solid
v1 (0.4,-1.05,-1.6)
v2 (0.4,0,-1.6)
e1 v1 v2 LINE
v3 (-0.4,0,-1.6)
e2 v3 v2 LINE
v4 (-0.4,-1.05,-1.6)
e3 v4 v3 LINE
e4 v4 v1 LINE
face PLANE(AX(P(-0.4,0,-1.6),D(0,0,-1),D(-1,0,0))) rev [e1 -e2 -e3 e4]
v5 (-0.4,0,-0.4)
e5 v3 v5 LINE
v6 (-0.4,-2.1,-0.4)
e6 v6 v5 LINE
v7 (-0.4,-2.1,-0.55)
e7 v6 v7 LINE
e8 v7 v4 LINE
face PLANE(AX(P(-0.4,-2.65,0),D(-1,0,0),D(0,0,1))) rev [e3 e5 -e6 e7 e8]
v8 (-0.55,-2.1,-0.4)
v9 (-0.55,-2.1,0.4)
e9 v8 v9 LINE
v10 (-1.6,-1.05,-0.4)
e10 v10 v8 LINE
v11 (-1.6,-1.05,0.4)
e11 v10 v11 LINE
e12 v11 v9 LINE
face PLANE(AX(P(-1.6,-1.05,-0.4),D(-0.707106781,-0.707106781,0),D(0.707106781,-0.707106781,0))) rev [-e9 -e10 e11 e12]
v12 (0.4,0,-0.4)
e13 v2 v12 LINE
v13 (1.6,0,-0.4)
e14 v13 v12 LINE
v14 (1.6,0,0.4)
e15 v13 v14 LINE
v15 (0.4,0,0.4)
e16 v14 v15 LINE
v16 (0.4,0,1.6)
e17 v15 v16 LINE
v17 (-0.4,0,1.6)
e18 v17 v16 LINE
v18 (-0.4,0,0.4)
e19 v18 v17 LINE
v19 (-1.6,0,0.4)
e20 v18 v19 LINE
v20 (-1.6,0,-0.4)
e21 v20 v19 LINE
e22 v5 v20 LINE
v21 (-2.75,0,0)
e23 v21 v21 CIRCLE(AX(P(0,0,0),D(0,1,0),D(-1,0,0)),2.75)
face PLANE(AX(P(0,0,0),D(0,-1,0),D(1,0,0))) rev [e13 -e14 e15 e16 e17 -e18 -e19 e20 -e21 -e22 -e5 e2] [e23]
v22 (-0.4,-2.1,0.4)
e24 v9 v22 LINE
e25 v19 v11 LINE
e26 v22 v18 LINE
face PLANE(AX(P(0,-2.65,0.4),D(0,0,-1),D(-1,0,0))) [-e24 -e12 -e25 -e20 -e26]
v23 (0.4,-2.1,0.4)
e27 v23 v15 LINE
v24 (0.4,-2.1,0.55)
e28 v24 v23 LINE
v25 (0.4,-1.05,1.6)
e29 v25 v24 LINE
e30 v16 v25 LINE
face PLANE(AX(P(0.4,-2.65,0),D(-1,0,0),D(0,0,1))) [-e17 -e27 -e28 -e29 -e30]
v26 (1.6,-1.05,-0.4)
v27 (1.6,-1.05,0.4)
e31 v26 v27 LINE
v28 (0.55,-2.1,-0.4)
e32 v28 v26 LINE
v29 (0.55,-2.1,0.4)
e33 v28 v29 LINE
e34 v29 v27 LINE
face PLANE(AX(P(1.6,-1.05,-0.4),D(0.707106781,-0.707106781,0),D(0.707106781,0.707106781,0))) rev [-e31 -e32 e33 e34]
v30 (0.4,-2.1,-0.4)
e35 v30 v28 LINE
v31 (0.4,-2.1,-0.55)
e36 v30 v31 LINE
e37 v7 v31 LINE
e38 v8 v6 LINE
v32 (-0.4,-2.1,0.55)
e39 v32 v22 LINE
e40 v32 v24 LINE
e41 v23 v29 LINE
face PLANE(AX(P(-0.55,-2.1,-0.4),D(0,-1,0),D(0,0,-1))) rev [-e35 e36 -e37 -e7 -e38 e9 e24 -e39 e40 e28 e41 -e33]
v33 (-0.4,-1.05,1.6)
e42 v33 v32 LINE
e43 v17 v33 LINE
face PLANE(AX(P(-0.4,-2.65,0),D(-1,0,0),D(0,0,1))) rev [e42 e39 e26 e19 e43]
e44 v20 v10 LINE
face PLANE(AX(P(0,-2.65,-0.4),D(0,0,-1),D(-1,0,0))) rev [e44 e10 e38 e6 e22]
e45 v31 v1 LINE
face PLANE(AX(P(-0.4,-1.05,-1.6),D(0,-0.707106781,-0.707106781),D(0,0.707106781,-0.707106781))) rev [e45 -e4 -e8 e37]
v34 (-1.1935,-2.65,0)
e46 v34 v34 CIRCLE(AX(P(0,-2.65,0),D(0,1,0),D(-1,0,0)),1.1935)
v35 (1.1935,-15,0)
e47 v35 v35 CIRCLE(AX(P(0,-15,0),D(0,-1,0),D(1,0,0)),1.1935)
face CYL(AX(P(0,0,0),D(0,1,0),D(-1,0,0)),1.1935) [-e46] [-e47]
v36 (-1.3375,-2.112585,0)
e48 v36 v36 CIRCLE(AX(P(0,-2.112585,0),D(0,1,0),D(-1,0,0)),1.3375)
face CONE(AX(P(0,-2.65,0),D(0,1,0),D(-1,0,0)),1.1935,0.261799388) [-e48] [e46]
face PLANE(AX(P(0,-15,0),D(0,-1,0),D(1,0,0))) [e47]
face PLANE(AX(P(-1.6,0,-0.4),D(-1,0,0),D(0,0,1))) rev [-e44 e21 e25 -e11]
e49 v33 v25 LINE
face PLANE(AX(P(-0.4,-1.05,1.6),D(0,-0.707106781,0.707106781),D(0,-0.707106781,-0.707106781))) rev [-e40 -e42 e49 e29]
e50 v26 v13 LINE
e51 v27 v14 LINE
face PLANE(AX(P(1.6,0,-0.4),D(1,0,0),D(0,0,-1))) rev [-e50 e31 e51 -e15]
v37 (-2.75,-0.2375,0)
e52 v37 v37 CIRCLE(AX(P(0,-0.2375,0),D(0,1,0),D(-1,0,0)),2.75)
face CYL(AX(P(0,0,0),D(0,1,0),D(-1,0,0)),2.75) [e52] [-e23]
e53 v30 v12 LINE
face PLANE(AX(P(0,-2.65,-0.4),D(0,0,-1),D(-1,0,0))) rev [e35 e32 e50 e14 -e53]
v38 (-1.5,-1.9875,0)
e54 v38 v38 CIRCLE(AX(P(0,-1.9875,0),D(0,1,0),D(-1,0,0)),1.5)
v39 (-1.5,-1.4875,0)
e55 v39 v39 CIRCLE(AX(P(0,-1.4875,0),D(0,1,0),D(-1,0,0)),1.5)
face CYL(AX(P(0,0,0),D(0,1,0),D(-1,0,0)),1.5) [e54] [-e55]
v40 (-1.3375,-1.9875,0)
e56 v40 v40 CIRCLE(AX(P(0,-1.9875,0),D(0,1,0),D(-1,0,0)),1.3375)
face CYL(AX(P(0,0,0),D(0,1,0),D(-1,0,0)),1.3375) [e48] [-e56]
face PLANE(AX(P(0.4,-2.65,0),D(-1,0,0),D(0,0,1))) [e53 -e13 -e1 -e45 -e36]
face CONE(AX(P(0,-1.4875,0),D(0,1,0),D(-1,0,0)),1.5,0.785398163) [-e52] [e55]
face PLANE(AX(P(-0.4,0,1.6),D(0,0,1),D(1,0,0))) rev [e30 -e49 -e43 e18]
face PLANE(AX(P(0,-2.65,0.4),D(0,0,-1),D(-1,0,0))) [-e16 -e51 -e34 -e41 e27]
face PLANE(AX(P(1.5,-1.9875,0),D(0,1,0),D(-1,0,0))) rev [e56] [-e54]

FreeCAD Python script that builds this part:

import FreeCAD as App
import Part
import Sketcher
from FreeCAD import Vector
Q = App.Units.Quantity

doc = App.newDocument("Part")
body = doc.addObject("PartDesign::Body", "Body")

# Sketch on XY plane
sketch1 = body.newObject("Sketcher::SketchObject", "Sketch")
sketch1.AttachmentSupport = (doc.getObject("XY_Plane"), [""])
sketch1.MapMode = "FlatFace"
sketch1.addGeometry(Part.LineSegment(Vector(2.75, 0, 0), Vector(0, 0, 0)), False)
sketch1.addGeometry(Part.LineSegment(Vector(0, 0, 0), Vector(0, -8, 0)), False)
sketch1.addGeometry(Part.LineSegment(Vector(0, -8, 0), Vector(1.19, -8, 0)), False)
sketch1.addGeometry(Part.LineSegment(Vector(1.19, -8, 0), Vector(1.19, -2.65, 0)), False)
sketch1.addGeometry(Part.LineSegment(Vector(1.19, -2.65, 0), Vector(1.34, -2.11, 0)), False)
sketch1.addGeometry(Part.LineSegment(Vector(1.34, -2.11, 0), Vector(1.34, -1.99, 0)), False)
sketch1.addGeometry(Part.LineSegment(Vector(1.34, -1.99, 0), Vector(1.5, -1.99, 0)), False)
sketch1.addGeometry(Part.LineSegment(Vector(1.5, -1.99, 0), Vector(1.5, -1.49, 0)), False)
sketch1.addGeometry(Part.LineSegment(Vector(1.5, -1.49, 0), Vector(2.75, -0.24, 0)), False)
sketch1.addGeometry(Part.LineSegment(Vector(2.75, -0.24, 0), Vector(2.75, 0, 0)), False)
sketch1.addConstraint(Sketcher.Constraint("Coincident", 0, 2, 1, 1))
sketch1.addConstraint(Sketcher.Constraint("Coincident", 1, 2, 2, 1))
sketch1.addConstraint(Sketcher.Constraint("Coincident", 2, 2, 3, 1))
sketch1.addConstraint(Sketcher.Constraint("Coincident", 3, 2, 4, 1))
sketch1.addConstraint(Sketcher.Constraint("Coincident", 4, 2, 5, 1))
sketch1.addConstraint(Sketcher.Constraint("Coincident", 5, 2, 6, 1))
sketch1.addConstraint(Sketcher.Constraint("Coincident", 6, 2, 7, 1))
sketch1.addConstraint(Sketcher.Constraint("Coincident", 7, 2, 8, 1))
sketch1.addConstraint(Sketcher.Constraint("Coincident", 8, 2, 9, 1))
sketch1.addConstraint(Sketcher.Constraint("Coincident", 9, 2, 0, 1))
sketch1.addConstraint(Sketcher.Constraint("Horizontal", 0))
sketch1.addConstraint(Sketcher.Constraint("Vertical", 1))
sketch1.addConstraint(Sketcher.Constraint("Horizontal", 2))
sketch1.addConstraint(Sketcher.Constraint("Vertical", 3))
sketch1.addConstraint(Sketcher.Constraint("Vertical", 5))
sketch1.addConstraint(Sketcher.Constraint("Horizontal", 6))
sketch1.addConstraint(Sketcher.Constraint("Vertical", 7))
sketch1.addConstraint(Sketcher.Constraint("Vertical", 9))
sketch1.addConstraint(Sketcher.Constraint("Coincident", 0, 2, -1, 1))
sketch1.addConstraint(Sketcher.Constraint("DistanceY", 1, 2, 1, 1, 8.0))
sketch1.addConstraint(Sketcher.Constraint("Angle", 4, Q("75 deg")))
sketch1.addConstraint(Sketcher.Constraint("Angle", 8, Q("45 deg")))
sketch1.addConstraint(Sketcher.Constraint("DistanceY", 7, 1, 7, 2, 0.5))
sketch1.addConstraint(Sketcher.Constraint("DistanceX", 0, 2, 0, 1, 2.75))
sketch1.addConstraint(Sketcher.Constraint("DistanceY", 3, 1, 3, 2, 5.35))
sketch1.addConstraint(Sketcher.Constraint("DistanceX", -1, 1, 6, 2, 1.5))
sketch1.addConstraint(Sketcher.Constraint("DistanceX", 2, 1, 2, 2, 1.1935))
sketch1.addConstraint(Sketcher.Constraint("DistanceX", 6, 1, 6, 2, 0.1625))
sketch1.addConstraint(Sketcher.Constraint("DistanceY", 9, 1, 9, 2, 0.2375))
revolution = body.newObject("PartDesign::Revolution", "Revolution")
revolution.Profile = sketch1
revolution.ReferenceAxis = (sketch1, ["V_Axis"])
revolution.Angle = 360

# Sketch on XY plane
sketch2 = body.newObject("Sketcher::SketchObject", "Sketch001")
sketch2.AttachmentSupport = (doc.getObject("XY_Plane"), [""])
sketch2.MapMode = "FlatFace"
sketch2.addGeometry(Part.LineSegment(Vector(-0.6, -2.1, 0), Vector(0.6, -2.1, 0)), False)
sketch2.addGeometry(Part.LineSegment(Vector(0.6, -2.1, 0), Vector(1.6, -1.1, 0)), False)
sketch2.addGeometry(Part.LineSegment(Vector(1.6, -1.1, 0), Vector(1.6, 0, 0)), False)
sketch2.addGeometry(Part.LineSegment(Vector(1.6, 0, 0), Vector(-1.6, 0, 0)), False)
sketch2.addGeometry(Part.LineSegment(Vector(-1.6, 0, 0), Vector(-1.6, -1.1, 0)), False)
sketch2.addGeometry(Part.LineSegment(Vector(-1.6, -1.1, 0), Vector(-0.6, -2.1, 0)), False)
sketch2.addConstraint(Sketcher.Constraint("Coincident", 0, 2, 1, 1))
sketch2.addConstraint(Sketcher.Constraint("Coincident", 1, 2, 2, 1))
sketch2.addConstraint(Sketcher.Constraint("Coincident", 2, 2, 3, 1))
sketch2.addConstraint(Sketcher.Constraint("Coincident", 3, 2, 4, 1))
sketch2.addConstraint(Sketcher.Constraint("Coincident", 4, 2, 5, 1))
sketch2.addConstraint(Sketcher.Constraint("Coincident", 5, 2, 0, 1))
sketch2.addConstraint(Sketcher.Constraint("Horizontal", 0))
sketch2.addConstraint(Sketcher.Constraint("Vertical", 2))
sketch2.addConstraint(Sketcher.Constraint("Horizontal", 3))
sketch2.addConstraint(Sketcher.Constraint("Vertical", 4))
sketch2.addConstraint(Sketcher.Constraint("Symmetric", 2, 2, 3, 2, -1, 1))
sketch2.addConstraint(Sketcher.Constraint("Perpendicular", 1, 5))
sketch2.addConstraint(Sketcher.Constraint("Horizontal", 1, 2, 4, 2))
sketch2.addConstraint(Sketcher.Constraint("Equal", 1, 5))
sketch2.addConstraint(Sketcher.Constraint("DistanceX", 0, 1, 0, 2, 1.1))
sketch2.addConstraint(Sketcher.Constraint("DistanceX", 3, 2, 3, 1, 3.2))
sketch2.addConstraint(Sketcher.Constraint("DistanceY", 2, 1, 2, 2, 1.05))
pocket1 = body.newObject("PartDesign::Pocket", "Pocket")
pocket1.Profile = sketch2
pocket1.Type = "TwoLengths"
pocket1.Length = 0.4
pocket1.Length2 = 0.4
pocket1.Reversed = True

# Sketch on YZ plane
sketch3 = body.newObject("Sketcher::SketchObject", "Sketch002")
sketch3.AttachmentSupport = (doc.getObject("YZ_Plane"), [""])
sketch3.MapMode = "FlatFace"
sketch3.addGeometry(Part.LineSegment(Vector(-2.1, 0.6, 0), Vector(-2.1, -0.6, 0)), False)
sketch3.addGeometry(Part.LineSegment(Vector(-2.1, -0.6, 0), Vector(-1.1, -1.6, 0)), False)
sketch3.addGeometry(Part.LineSegment(Vector(-1.1, -1.6, 0), Vector(0, -1.6, 0)), False)
sketch3.addGeometry(Part.LineSegment(Vector(0, -1.6, 0), Vector(0, 1.6, 0)), False)
sketch3.addGeometry(Part.LineSegment(Vector(0, 1.6, 0), Vector(-1.1, 1.6, 0)), False)
sketch3.addGeometry(Part.LineSegment(Vector(-1.1, 1.6, 0), Vector(-2.1, 0.6, 0)), False)
sketch3.addConstraint(Sketcher.Constraint("Coincident", 0, 2, 1, 1))
sketch3.addConstraint(Sketcher.Constraint("Coincident", 1, 2, 2, 1))
sketch3.addConstraint(Sketcher.Constraint("Coincident", 2, 2, 3, 1))
sketch3.addConstraint(Sketcher.Constraint("Coincident", 3, 2, 4, 1))
sketch3.addConstraint(Sketcher.Constraint("Coincident", 4, 2, 5, 1))
sketch3.addConstraint(Sketcher.Constraint("Coincident", 5, 2, 0, 1))
sketch3.addConstraint(Sketcher.Constraint("Vertical", 0))
sketch3.addConstraint(Sketcher.Constraint("Horizontal", 2))
sketch3.addConstraint(Sketcher.Constraint("Vertical", 3))
sketch3.addConstraint(Sketcher.Constraint("Horizontal", 4))
sketch3.addConstraint(Sketcher.Constraint("Symmetric", 2, 2, 3, 2, -1, 1))
sketch3.addConstraint(Sketcher.Constraint("Perpendicular", 1, 5))
sketch3.addConstraint(Sketcher.Constraint("Vertical", 1, 2, 4, 2))
sketch3.addConstraint(Sketcher.Constraint("Equal", 1, 5))
sketch3.addConstraint(Sketcher.Constraint("DistanceY", 0, 2, 0, 1, 1.1))
sketch3.addConstraint(Sketcher.Constraint("DistanceY", 3, 1, 3, 2, 3.2))
sketch3.addConstraint(Sketcher.Constraint("DistanceX", 2, 1, 2, 2, 1.05))
pocket2 = body.newObject("PartDesign::Pocket", "Pocket001")
pocket2.Profile = sketch3
pocket2.Type = "TwoLengths"
pocket2.Length = 0.4
pocket2.Length2 = 0.4
pocket2.Reversed = True

# Sketch on XZ plane
sketch4 = body.newObject("Sketcher::SketchObject", "Sketch003")
sketch4.AttachmentSupport = (doc.getObject("XZ_Plane"), [""])
sketch4.MapMode = "FlatFace"
sketch4.AttachmentOffset = App.Placement(Vector(0, 0, 15), App.Rotation())
sketch4.addGeometry(Part.Circle(Vector(0, 0, 0), Vector(0, 0, 1), 1.2), False)
sketch4.addConstraint(Sketcher.Constraint("Coincident", 0, 3, -1, 1))
sketch4.addConstraint(Sketcher.Constraint("Diameter", 0, 2.387))
pad1 = body.newObject("PartDesign::Pad", "Pad")
pad1.Profile = sketch4
pad1.Length = 7
pad1.Reversed = True

doc.recompute()
